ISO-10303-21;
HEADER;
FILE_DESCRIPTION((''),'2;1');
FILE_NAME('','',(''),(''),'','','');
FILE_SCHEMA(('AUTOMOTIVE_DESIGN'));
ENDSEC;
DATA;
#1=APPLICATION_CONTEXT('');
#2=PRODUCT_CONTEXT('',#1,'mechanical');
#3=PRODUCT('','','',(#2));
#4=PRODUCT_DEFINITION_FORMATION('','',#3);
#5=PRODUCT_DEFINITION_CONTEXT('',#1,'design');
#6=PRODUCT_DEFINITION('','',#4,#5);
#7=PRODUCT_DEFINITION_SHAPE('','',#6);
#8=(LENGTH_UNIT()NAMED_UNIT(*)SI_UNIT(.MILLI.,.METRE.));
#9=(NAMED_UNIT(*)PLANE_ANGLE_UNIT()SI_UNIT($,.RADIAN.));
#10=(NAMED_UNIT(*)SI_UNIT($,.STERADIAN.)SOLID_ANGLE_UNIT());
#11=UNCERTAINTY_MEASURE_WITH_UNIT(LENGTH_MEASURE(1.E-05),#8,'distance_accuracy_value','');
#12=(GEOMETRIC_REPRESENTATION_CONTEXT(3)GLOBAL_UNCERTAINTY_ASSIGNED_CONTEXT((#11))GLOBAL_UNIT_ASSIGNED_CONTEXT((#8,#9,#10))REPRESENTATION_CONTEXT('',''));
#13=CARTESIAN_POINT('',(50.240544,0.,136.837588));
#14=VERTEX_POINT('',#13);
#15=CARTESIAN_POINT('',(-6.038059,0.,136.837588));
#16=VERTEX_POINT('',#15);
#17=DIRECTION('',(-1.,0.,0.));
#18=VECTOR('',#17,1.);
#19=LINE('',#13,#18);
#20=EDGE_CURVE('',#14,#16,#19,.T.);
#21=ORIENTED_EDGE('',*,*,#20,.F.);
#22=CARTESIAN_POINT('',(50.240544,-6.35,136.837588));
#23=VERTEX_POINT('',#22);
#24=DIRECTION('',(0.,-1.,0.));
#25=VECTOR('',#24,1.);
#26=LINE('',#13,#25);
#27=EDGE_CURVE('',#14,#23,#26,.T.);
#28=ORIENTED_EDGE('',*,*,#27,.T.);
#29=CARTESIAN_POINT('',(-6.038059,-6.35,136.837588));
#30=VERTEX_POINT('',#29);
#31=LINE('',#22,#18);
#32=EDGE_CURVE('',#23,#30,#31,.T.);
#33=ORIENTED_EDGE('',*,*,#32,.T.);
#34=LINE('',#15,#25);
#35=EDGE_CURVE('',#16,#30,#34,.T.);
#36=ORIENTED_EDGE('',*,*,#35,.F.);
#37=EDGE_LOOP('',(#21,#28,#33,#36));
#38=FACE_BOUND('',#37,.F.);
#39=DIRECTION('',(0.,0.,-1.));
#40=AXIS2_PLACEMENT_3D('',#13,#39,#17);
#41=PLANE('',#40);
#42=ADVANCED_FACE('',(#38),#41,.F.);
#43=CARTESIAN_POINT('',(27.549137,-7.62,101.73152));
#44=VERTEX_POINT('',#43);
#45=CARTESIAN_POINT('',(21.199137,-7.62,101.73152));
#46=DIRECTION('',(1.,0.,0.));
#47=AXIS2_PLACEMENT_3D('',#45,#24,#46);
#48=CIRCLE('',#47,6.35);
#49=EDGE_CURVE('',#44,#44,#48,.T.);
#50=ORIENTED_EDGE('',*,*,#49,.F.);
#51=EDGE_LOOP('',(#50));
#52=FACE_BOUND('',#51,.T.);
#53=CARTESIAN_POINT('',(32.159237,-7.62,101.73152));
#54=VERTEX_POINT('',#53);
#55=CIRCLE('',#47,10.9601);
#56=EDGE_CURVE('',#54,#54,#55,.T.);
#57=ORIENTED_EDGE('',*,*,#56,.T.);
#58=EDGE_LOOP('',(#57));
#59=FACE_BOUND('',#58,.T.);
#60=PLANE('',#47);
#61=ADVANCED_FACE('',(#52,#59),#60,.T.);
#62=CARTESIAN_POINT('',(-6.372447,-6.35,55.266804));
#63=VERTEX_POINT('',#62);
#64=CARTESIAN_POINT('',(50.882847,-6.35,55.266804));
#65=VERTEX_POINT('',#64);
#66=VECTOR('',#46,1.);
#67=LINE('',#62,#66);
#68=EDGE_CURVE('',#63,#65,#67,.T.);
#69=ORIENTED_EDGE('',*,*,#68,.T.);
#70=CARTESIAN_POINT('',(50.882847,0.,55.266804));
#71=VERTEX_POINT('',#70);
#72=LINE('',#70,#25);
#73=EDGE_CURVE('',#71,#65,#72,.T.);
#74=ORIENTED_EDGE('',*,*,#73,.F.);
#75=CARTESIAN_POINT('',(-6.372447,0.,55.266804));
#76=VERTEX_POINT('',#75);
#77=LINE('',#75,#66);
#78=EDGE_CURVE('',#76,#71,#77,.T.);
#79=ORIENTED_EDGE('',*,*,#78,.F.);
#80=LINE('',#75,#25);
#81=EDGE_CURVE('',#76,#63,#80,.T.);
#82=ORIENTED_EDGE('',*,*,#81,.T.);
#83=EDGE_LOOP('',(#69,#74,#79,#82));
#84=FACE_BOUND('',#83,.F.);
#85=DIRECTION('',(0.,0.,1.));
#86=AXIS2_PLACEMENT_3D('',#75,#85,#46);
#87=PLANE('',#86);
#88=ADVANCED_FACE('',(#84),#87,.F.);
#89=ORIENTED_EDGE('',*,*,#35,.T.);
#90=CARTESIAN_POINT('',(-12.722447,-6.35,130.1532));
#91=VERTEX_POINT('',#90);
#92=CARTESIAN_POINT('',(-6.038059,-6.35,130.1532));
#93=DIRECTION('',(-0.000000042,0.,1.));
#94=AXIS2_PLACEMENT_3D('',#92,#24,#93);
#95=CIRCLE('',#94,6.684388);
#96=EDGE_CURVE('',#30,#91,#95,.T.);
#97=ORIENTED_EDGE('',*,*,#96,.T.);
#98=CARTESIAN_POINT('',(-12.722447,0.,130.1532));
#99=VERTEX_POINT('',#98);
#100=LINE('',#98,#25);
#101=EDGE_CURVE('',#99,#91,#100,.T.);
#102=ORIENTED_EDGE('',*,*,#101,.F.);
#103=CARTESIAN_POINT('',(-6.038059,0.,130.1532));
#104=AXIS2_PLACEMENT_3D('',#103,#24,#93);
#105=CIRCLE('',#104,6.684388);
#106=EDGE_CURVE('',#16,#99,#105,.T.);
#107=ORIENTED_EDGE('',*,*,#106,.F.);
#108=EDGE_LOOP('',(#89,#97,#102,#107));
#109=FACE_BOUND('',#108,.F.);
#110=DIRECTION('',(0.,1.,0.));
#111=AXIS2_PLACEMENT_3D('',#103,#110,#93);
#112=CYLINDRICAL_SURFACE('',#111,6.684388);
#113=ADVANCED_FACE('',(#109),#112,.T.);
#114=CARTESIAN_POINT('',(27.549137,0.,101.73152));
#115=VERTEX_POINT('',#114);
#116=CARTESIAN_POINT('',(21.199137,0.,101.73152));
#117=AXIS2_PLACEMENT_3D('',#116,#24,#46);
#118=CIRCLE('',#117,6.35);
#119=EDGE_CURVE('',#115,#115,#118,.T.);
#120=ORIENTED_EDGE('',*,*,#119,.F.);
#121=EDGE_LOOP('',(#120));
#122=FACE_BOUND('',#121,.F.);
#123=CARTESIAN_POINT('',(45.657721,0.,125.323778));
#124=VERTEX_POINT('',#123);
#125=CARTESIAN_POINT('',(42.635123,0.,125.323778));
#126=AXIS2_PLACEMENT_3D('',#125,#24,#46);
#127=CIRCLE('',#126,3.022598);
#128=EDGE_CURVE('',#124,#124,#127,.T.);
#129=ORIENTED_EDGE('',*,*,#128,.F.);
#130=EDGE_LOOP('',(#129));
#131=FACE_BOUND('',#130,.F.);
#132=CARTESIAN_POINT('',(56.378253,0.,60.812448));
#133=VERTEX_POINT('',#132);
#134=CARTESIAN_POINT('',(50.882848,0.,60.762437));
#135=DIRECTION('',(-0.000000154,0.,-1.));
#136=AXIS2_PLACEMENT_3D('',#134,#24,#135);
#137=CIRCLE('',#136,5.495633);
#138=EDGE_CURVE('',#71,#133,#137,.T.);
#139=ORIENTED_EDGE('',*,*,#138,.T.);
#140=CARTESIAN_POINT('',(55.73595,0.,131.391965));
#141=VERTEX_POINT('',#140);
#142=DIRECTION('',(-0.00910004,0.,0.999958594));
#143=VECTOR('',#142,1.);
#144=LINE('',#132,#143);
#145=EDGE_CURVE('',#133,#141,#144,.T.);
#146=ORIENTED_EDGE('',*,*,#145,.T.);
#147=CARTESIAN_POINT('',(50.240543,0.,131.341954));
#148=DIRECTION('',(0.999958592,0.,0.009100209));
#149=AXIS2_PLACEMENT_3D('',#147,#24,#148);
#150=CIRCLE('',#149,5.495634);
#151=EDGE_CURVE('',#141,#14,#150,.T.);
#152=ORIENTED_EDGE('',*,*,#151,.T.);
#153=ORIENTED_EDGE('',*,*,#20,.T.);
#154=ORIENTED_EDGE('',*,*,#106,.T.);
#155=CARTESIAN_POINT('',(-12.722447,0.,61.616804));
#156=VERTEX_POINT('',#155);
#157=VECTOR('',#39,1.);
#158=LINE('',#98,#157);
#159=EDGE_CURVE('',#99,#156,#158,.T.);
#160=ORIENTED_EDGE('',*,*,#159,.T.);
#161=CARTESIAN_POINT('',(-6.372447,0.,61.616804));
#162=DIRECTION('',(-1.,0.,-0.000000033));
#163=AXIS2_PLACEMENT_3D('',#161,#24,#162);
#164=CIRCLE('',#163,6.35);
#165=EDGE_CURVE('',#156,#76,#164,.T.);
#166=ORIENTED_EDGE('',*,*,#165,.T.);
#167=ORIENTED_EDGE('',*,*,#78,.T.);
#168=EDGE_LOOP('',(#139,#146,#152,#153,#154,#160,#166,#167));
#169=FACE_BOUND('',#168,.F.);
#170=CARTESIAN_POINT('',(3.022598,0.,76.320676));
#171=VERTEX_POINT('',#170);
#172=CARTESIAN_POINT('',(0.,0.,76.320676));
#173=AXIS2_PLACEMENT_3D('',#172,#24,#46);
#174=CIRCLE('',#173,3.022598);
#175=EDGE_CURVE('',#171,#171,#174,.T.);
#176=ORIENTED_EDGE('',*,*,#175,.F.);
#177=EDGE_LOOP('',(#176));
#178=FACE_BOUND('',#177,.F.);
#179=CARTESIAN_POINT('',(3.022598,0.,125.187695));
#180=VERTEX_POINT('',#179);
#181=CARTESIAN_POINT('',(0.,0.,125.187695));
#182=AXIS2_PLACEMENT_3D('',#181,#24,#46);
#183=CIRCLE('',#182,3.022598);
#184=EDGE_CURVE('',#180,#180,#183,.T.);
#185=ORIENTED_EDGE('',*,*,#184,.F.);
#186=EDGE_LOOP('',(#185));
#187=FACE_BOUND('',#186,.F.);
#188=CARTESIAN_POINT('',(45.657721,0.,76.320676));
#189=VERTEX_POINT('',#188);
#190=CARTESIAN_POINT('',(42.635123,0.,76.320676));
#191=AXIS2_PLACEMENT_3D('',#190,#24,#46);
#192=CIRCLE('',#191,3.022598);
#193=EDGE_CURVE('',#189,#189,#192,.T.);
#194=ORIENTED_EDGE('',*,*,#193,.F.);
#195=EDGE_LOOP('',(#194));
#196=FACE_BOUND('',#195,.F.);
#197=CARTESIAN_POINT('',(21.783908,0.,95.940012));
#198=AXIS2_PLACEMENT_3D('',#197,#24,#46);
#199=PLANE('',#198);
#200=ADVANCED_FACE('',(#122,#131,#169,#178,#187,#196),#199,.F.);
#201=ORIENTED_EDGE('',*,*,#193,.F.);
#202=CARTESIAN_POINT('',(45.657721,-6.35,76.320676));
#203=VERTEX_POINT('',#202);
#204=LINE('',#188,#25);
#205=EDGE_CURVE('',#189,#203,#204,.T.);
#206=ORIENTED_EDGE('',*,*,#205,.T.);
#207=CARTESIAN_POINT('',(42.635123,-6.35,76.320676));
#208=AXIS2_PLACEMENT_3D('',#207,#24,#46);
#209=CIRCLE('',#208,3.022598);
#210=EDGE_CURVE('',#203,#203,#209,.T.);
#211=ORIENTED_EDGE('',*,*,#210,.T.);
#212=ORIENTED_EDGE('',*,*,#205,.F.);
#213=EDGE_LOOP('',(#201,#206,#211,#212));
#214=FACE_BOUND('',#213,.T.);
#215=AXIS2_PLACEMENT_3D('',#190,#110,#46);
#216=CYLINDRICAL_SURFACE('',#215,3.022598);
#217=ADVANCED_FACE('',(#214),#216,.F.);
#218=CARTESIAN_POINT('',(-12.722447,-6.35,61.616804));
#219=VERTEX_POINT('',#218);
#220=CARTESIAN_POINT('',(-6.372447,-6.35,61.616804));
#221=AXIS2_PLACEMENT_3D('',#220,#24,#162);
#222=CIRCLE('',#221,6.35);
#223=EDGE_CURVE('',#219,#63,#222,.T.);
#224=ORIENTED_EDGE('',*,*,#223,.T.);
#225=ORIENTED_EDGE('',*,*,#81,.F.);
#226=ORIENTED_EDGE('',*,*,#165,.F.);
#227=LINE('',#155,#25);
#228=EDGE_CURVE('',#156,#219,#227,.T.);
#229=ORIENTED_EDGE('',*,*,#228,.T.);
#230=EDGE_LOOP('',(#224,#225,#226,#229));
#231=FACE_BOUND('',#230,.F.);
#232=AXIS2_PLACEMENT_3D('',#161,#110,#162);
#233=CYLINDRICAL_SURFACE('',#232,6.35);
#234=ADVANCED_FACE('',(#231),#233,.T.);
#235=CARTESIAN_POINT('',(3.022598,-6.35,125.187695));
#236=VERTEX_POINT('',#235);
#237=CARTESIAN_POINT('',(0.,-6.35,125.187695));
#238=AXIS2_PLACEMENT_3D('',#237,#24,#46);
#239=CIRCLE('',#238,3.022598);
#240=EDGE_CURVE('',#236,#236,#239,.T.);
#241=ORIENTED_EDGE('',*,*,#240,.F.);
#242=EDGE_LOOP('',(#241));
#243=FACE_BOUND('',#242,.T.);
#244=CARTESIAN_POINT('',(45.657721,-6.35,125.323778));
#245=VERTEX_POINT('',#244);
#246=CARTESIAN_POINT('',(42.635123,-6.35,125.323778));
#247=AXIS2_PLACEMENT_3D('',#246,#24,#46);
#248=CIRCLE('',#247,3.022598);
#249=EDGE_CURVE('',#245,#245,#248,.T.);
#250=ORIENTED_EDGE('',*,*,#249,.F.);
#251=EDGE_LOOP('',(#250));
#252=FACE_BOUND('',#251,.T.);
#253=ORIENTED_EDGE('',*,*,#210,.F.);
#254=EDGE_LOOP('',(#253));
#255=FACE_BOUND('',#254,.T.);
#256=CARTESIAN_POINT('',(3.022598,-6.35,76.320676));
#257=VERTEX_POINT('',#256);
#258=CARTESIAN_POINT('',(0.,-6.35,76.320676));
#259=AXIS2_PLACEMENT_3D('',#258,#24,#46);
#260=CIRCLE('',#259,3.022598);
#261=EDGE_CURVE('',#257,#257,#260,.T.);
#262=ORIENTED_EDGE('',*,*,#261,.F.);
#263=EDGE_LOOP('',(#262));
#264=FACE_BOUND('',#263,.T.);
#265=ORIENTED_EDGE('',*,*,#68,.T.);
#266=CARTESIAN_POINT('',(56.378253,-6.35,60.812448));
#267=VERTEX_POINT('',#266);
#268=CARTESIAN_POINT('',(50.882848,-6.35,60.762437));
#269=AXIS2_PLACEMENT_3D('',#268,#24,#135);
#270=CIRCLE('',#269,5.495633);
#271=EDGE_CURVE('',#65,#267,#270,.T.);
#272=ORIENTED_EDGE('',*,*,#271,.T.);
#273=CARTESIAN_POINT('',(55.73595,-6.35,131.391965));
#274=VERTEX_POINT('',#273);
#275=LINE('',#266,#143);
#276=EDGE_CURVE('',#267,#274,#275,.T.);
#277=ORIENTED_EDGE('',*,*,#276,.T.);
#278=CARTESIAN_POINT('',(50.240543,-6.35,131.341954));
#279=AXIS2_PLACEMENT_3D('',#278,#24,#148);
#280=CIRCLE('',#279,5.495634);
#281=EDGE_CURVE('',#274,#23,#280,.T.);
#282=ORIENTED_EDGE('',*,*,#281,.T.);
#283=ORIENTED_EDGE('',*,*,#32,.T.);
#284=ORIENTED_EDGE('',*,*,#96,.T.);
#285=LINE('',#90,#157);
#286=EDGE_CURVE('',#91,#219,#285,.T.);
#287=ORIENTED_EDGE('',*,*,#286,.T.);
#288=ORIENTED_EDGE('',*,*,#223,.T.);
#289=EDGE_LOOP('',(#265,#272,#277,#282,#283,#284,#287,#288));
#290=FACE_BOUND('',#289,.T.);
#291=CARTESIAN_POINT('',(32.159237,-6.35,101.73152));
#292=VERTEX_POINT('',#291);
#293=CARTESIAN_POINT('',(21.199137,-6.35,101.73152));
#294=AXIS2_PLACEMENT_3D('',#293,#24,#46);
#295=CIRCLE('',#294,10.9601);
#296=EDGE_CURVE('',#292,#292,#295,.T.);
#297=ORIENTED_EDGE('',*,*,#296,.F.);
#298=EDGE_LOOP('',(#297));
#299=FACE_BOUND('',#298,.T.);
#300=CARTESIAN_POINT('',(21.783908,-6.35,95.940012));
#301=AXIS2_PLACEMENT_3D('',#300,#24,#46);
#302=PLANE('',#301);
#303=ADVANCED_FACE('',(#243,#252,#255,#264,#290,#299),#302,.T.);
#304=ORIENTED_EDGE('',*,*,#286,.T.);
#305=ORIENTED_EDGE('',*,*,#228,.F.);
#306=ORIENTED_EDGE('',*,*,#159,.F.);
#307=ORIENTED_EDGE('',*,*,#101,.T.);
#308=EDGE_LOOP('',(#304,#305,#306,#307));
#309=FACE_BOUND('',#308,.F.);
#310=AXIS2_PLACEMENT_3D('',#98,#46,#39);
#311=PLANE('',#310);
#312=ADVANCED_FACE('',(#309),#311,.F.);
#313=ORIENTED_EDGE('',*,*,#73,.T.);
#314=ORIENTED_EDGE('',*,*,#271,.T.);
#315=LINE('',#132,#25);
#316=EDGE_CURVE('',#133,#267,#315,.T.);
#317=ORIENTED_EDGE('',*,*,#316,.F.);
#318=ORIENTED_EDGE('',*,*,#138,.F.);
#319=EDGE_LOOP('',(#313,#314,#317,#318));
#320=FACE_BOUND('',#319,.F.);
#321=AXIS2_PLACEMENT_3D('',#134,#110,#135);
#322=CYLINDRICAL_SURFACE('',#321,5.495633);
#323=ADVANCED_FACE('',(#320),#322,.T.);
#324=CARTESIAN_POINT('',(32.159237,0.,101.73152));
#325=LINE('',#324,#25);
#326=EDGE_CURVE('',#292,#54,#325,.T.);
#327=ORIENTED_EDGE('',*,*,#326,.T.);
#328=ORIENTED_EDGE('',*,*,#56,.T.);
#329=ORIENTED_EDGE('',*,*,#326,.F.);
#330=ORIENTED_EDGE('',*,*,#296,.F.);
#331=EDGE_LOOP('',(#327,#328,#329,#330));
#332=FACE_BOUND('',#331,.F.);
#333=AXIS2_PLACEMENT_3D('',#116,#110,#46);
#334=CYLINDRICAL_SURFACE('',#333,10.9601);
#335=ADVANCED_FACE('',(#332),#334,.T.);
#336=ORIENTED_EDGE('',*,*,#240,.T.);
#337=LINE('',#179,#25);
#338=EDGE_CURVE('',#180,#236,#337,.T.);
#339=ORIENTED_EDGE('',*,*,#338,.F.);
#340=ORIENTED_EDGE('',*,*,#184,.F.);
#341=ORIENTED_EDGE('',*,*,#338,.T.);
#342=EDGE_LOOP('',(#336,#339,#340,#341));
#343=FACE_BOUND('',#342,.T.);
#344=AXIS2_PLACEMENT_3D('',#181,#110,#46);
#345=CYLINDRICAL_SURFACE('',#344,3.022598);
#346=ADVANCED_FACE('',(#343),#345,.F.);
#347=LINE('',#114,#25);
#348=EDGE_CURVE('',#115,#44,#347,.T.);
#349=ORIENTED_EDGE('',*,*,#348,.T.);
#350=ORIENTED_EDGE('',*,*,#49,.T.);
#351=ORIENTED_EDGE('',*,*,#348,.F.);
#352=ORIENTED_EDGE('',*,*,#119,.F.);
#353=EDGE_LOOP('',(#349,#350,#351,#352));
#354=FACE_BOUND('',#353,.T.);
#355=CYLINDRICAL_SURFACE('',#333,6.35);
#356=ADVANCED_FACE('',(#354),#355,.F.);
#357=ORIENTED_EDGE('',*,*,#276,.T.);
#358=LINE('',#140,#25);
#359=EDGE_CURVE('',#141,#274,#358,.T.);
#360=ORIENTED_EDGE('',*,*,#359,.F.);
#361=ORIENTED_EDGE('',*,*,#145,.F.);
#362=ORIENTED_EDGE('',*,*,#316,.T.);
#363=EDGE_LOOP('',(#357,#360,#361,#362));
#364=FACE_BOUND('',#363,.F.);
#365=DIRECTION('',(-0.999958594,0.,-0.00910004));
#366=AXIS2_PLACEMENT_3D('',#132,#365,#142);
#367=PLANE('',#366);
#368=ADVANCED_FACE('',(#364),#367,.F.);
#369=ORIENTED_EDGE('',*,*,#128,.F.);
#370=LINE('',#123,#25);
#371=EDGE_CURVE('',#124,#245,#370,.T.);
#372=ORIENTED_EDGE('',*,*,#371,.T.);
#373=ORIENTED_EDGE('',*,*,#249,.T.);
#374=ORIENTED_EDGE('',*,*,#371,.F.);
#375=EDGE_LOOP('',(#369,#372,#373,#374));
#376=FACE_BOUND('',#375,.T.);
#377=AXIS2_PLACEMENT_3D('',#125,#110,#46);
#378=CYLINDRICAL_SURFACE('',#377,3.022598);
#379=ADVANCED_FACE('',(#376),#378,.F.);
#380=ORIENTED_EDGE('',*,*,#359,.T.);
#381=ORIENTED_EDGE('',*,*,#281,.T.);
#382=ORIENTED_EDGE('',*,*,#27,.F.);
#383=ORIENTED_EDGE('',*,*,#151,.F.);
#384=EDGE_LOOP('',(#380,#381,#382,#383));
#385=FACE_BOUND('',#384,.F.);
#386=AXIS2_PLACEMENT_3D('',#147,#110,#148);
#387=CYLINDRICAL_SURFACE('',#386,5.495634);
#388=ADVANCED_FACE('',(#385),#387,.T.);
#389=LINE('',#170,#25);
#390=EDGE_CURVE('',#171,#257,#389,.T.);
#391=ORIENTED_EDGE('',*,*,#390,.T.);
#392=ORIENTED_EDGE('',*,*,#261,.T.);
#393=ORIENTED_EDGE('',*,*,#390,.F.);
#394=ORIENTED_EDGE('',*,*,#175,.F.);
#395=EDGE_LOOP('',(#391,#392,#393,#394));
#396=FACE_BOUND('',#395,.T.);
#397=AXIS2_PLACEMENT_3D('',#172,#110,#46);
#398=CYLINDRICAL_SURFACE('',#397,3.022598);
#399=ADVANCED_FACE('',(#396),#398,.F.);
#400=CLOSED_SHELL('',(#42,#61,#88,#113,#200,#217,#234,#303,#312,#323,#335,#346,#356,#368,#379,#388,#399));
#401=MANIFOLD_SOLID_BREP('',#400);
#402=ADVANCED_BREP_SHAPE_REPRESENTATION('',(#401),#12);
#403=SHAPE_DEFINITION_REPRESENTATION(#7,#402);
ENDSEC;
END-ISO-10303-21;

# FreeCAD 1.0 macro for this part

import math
import FreeCAD as App
import Part
import Sketcher

V = App.Vector
Q = App.Units.Quantity

doc = App.newDocument("Part")
body = doc.addObject("PartDesign::Body", "Body")

# Sketch on XZ plane
sketch1 = body.newObject("Sketcher::SketchObject", "Sketch")
sketch1.AttachmentSupport = (doc.getObject("XZ_Plane"), [""])
sketch1.MapMode = "FlatFace"
sketch1.addGeometry(Part.LineSegment(V(-6.4, 55.3, 0), V(50.9, 55.3, 0)), False)
sketch1.addGeometry(Part.ArcOfCircle(Part.Circle(V(50.9, 60.8, 0), V(0, 0, 1), 5.5), math.radians(-90), math.radians(1)), False)
sketch1.addGeometry(Part.LineSegment(V(56.4, 60.8, 0), V(55.7, 131.4, 0)), False)
sketch1.addGeometry(Part.ArcOfCircle(Part.Circle(V(50.2, 131.3, 0), V(0, 0, 1), 5.5), math.radians(1), math.radians(90)), False)
sketch1.addGeometry(Part.LineSegment(V(50.2, 136.8, 0), V(-6, 136.8, 0)), False)
sketch1.addGeometry(Part.ArcOfCircle(Part.Circle(V(-6, 130.2, 0), V(0, 0, 1), 6.7), math.radians(90), math.radians(180)), False)
sketch1.addGeometry(Part.LineSegment(V(-12.7, 130.2, 0), V(-12.7, 61.6, 0)), False)
sketch1.addGeometry(Part.ArcOfCircle(Part.Circle(V(-6.4, 61.6, 0), V(0, 0, 1), 6.4), math.radians(-180), math.radians(-90)), False)
sketch1.addGeometry(Part.Circle(V(0, 76.3, 0), V(0, 0, 1), 3), False)
sketch1.addGeometry(Part.Circle(V(42.6, 76.3, 0), V(0, 0, 1), 3), False)
sketch1.addGeometry(Part.Circle(V(21.2, 101.7, 0), V(0, 0, 1), 11), False)
sketch1.addGeometry(Part.Circle(V(0, 125.2, 0), V(0, 0, 1), 3), False)
sketch1.addGeometry(Part.Circle(V(42.6, 125.3, 0), V(0, 0, 1), 3), False)
sketch1.addConstraint(Sketcher.Constraint("Tangent", 0, 2, 1, 1))
sketch1.addConstraint(Sketcher.Constraint("Tangent", 1, 2, 2, 1))
sketch1.addConstraint(Sketcher.Constraint("Tangent", 2, 2, 3, 1))
sketch1.addConstraint(Sketcher.Constraint("Tangent", 3, 2, 4, 1))
sketch1.addConstraint(Sketcher.Constraint("Tangent", 4, 2, 5, 1))
sketch1.addConstraint(Sketcher.Constraint("Tangent", 5, 2, 6, 1))
sketch1.addConstraint(Sketcher.Constraint("Tangent", 6, 2, 7, 1))
sketch1.addConstraint(Sketcher.Constraint("Tangent", 7, 2, 0, 1))
sketch1.addConstraint(Sketcher.Constraint("Horizontal", 0))
sketch1.addConstraint(Sketcher.Constraint("Horizontal", 4))
sketch1.addConstraint(Sketcher.Constraint("Vertical", 6))
sketch1.addConstraint(Sketcher.Constraint("Equal", 1, 3))
sketch1.addConstraint(Sketcher.Constraint("Equal", 8, 9))
sketch1.addConstraint(Sketcher.Constraint("Equal", 9, 11))
sketch1.addConstraint(Sketcher.Constraint("Equal", 11, 12))
sketch1.addConstraint(Sketcher.Constraint("PointOnObject", 8, 3, -2))
sketch1.addConstraint(Sketcher.Constraint("PointOnObject", 11, 3, -2))
sketch1.addConstraint(Sketcher.Constraint("Horizontal", 8, 3, 9, 3))
sketch1.addConstraint(Sketcher.Constraint("Vertical", 9, 3, 12, 3))
sketch1.addConstraint(Sketcher.Constraint("Radius", 7, Q("0.25 in")))
sketch1.addConstraint(Sketcher.Constraint("Diameter", 8, Q("0.2379998 in")))
sketch1.addConstraint(Sketcher.Constraint("Diameter", 10, Q("0.863 in")))
sketch1.addConstraint(Sketcher.Constraint("Radius", 5, 6.684388))
sketch1.addConstraint(Sketcher.Constraint("Radius", 1, 5.495633))
sketch1.addConstraint(Sketcher.Constraint("DistanceY", -1, 1, 5, 3, 130.1532))
sketch1.addConstraint(Sketcher.Constraint("DistanceX", 5, 3, 3, 3, 56.278602))
sketch1.addConstraint(Sketcher.Constraint("DistanceY", 9, 3, 12, 3, 49.003102))
sketch1.addConstraint(Sketcher.Constraint("Distance", 2, 70.58244))
sketch1.addConstraint(Sketcher.Constraint("DistanceX", 0, 1, 0, 2, 57.255294))
sketch1.addConstraint(Sketcher.Constraint("DistanceX", 5, 3, -1, 1, 6.038059))
sketch1.addConstraint(Sketcher.Constraint("DistanceY", -1, 1, 10, 3, 101.73152))
sketch1.addConstraint(Sketcher.Constraint("DistanceY", -1, 1, 12, 3, 125.323778))
sketch1.addConstraint(Sketcher.Constraint("DistanceX", 7, 3, 9, 3, 49.00757))
sketch1.addConstraint(Sketcher.Constraint("DistanceY", 8, 3, 11, 3, 48.867019))
sketch1.addConstraint(Sketcher.Constraint("DistanceX", 10, 3, 0, 2, 29.68371))
pad1 = body.newObject("PartDesign::Pad", "Pad")
pad1.Profile = sketch1
pad1.Length = Q("0.25 in")

# Sketch on XZ plane
sketch2 = body.newObject("Sketcher::SketchObject", "Sketch001")
sketch2.AttachmentSupport = (doc.getObject("XZ_Plane"), [""])
sketch2.MapMode = "FlatFace"
sketch2.addGeometry(Part.Circle(V(21, 102, 0), V(0, 0, 1), 11), False)
sketch2.addGeometry(Part.Circle(V(21, 102, 0), V(0, 0, 1), 6), False)
sketch2.addConstraint(Sketcher.Constraint("Coincident", 1, 3, 0, 3))
sketch2.addConstraint(Sketcher.Constraint("Diameter", 1, Q("0.5 in")))
sketch2.addConstraint(Sketcher.Constraint("Diameter", 0, Q("0.863 in")))
sketch2.addConstraint(Sketcher.Constraint("DistanceY", -1, 1, 0, 3, 101.73152))
sketch2.addConstraint(Sketcher.Constraint("DistanceX", -1, 1, 0, 3, 21.199137))
pad2 = body.newObject("PartDesign::Pad", "Pad001")
pad2.Profile = sketch2
pad2.Length = Q("0.3 in")

doc.recompute()
